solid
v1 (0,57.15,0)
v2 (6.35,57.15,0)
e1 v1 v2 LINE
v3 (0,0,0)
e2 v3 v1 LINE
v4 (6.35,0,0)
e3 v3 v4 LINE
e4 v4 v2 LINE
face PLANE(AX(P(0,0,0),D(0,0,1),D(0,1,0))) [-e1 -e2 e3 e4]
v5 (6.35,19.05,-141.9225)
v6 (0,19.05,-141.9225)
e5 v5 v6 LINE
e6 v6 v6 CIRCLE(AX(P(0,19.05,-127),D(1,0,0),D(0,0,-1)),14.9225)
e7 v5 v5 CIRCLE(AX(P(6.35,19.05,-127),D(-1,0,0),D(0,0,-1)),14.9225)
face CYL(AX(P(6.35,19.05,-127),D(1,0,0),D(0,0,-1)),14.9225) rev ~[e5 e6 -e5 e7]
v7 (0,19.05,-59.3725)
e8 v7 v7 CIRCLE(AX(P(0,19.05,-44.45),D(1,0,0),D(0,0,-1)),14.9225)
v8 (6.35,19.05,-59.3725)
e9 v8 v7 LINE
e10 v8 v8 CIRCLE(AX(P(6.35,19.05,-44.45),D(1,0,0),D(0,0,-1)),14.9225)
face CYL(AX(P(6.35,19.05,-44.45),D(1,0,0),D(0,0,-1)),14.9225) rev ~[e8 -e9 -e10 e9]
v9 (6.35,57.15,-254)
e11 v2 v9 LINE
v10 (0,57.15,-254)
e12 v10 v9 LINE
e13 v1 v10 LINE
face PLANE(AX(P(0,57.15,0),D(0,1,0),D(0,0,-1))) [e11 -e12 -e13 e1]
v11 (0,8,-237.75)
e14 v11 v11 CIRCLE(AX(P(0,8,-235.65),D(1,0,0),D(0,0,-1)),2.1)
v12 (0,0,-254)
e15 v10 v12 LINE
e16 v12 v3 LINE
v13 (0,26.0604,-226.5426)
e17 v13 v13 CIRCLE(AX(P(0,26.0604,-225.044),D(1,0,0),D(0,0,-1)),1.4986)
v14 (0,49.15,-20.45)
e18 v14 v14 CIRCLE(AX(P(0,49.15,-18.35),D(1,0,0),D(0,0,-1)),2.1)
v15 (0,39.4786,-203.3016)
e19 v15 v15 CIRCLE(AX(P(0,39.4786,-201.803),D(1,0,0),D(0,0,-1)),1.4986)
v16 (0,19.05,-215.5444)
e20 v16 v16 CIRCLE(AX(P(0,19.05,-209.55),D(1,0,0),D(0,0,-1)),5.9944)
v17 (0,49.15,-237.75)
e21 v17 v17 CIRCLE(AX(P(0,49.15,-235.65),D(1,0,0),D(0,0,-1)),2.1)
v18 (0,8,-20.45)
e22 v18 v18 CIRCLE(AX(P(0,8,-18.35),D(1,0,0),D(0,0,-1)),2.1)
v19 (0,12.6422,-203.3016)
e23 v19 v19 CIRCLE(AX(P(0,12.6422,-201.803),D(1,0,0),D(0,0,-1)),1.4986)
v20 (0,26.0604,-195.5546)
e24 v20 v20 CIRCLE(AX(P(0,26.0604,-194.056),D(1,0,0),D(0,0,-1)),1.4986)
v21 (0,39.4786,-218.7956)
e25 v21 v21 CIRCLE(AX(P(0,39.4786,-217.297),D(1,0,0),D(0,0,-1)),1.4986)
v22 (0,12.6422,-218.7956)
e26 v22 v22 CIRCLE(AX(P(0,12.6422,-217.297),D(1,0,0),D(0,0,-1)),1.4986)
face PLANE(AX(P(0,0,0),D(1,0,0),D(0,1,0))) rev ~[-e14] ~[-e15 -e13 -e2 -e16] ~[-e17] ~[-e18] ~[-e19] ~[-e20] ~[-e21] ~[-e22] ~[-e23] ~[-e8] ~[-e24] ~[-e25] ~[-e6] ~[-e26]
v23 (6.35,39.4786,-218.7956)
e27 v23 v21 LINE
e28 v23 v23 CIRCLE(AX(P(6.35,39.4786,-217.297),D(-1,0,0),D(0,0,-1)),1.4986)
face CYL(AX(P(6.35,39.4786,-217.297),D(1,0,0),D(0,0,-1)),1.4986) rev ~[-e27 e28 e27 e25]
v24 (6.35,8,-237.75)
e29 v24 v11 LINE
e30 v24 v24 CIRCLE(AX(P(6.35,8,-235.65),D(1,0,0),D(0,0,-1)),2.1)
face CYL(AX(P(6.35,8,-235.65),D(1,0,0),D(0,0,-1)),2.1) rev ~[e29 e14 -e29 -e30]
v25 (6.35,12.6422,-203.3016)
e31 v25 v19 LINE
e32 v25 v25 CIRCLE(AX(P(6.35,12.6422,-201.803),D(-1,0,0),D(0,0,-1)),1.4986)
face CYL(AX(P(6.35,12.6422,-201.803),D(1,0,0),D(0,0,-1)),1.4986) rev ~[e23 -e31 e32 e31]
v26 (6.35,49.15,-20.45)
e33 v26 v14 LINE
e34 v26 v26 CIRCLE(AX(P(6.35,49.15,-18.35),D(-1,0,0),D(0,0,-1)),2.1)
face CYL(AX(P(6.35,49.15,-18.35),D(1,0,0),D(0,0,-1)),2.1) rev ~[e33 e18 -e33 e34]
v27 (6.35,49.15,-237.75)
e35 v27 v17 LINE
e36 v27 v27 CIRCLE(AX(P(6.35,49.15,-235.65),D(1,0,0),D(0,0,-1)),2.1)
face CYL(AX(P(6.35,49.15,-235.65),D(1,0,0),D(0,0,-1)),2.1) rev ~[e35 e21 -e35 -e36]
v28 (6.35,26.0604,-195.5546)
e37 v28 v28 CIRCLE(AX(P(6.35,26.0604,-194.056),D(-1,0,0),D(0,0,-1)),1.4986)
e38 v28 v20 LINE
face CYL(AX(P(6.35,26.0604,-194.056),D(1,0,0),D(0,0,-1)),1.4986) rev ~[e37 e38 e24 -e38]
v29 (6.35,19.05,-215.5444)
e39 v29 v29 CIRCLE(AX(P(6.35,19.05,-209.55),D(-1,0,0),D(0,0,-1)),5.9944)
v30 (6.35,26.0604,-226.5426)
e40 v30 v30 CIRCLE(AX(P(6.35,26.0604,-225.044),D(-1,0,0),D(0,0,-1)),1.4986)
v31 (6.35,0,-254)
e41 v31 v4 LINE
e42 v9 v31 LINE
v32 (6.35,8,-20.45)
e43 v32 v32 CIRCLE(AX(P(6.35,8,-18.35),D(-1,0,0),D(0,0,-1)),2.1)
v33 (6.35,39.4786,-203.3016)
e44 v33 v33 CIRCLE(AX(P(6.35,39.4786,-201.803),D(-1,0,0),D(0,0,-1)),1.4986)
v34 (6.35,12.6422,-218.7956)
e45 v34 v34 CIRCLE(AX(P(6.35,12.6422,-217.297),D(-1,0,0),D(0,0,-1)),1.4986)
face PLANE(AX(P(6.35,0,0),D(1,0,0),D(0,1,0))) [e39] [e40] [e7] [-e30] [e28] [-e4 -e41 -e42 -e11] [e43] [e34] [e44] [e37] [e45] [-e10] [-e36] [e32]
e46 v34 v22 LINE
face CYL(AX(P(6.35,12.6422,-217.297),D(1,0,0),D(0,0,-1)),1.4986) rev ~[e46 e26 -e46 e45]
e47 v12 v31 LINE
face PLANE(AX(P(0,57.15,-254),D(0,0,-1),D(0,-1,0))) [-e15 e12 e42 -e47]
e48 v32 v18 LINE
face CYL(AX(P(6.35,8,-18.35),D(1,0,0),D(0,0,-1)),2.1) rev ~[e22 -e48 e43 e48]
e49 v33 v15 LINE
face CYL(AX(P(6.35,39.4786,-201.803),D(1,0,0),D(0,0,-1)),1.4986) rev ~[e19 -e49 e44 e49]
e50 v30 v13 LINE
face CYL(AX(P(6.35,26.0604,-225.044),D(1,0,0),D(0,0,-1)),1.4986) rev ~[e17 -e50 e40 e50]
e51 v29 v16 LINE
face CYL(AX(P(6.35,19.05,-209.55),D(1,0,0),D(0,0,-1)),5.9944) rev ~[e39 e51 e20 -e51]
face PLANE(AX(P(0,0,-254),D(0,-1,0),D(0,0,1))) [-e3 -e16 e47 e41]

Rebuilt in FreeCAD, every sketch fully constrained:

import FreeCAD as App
import Part
import Sketcher

V = App.Vector
Q = App.Units.Quantity

doc = App.newDocument("Part")
body = doc.addObject("PartDesign::Body", "Body")

# Sketch on YZ plane
sketch1 = body.newObject("Sketcher::SketchObject", "Sketch")
sketch1.AttachmentSupport = (doc.getObject("YZ_Plane"), [""])
sketch1.MapMode = "FlatFace"
sketch1.addGeometry(Part.LineSegment(V(57.15, 0, 0), V(0, 0, 0)), False)
sketch1.addGeometry(Part.LineSegment(V(0, 0, 0), V(0, -254, 0)), False)
sketch1.addGeometry(Part.LineSegment(V(0, -254, 0), V(57.15, -254, 0)), False)
sketch1.addGeometry(Part.LineSegment(V(57.15, -254, 0), V(57.15, 0, 0)), False)
sketch1.addConstraint(Sketcher.Constraint("Coincident", 0, 2, 1, 1))
sketch1.addConstraint(Sketcher.Constraint("Coincident", 1, 2, 2, 1))
sketch1.addConstraint(Sketcher.Constraint("Coincident", 2, 2, 3, 1))
sketch1.addConstraint(Sketcher.Constraint("Coincident", 3, 2, 0, 1))
sketch1.addConstraint(Sketcher.Constraint("Horizontal", 0))
sketch1.addConstraint(Sketcher.Constraint("Vertical", 1))
sketch1.addConstraint(Sketcher.Constraint("Horizontal", 2))
sketch1.addConstraint(Sketcher.Constraint("Vertical", 3))
sketch1.addConstraint(Sketcher.Constraint("Coincident", 0, 2, -1, 1))
sketch1.addConstraint(Sketcher.Constraint("DistanceY", 1, 2, 1, 1, Q("10 in")))
sketch1.addConstraint(Sketcher.Constraint("DistanceX", 0, 2, 0, 1, Q("2.25 in")))
pad1 = body.newObject("PartDesign::Pad", "Pad")
pad1.Profile = sketch1
pad1.Length = Q("0.25 in")

# Sketch on YZ plane
sketch2 = body.newObject("Sketcher::SketchObject", "Sketch001")
sketch2.AttachmentSupport = (doc.getObject("YZ_Plane"), [""])
sketch2.MapMode = "FlatFace"
sketch2.AttachmentOffset = App.Placement(V(0, 0, 0.25 * 25.4), App.Rotation())
sketch2.addGeometry(Part.Circle(V(19.05, -209.55, 0), V(0, 0, 1), 5.9944), False)
sketch2.addGeometry(Part.Circle(V(12.6422, -201.803, 0), V(0, 0, 1), 1.4986), False)
sketch2.addGeometry(Part.Circle(V(26.0604, -194.056, 0), V(0, 0, 1), 1.4986), False)
sketch2.addGeometry(Part.Circle(V(12.6422, -217.297, 0), V(0, 0, 1), 1.4986), False)
sketch2.addGeometry(Part.Circle(V(39.4786, -201.803, 0), V(0, 0, 1), 1.4986), False)
sketch2.addGeometry(Part.Circle(V(26.0604, -225.044, 0), V(0, 0, 1), 1.4986), False)
sketch2.addGeometry(Part.Circle(V(39.4786, -217.297, 0), V(0, 0, 1), 1.4986), False)
sketch2.addConstraint(Sketcher.Constraint("Equal", 1, 2))
sketch2.addConstraint(Sketcher.Constraint("Equal", 2, 3))
sketch2.addConstraint(Sketcher.Constraint("Equal", 3, 4))
sketch2.addConstraint(Sketcher.Constraint("Equal", 4, 5))
sketch2.addConstraint(Sketcher.Constraint("Equal", 5, 6))
sketch2.addConstraint(Sketcher.Constraint("Horizontal", 1, 3, 4, 3))
sketch2.addConstraint(Sketcher.Constraint("Horizontal", 3, 3, 6, 3))
sketch2.addConstraint(Sketcher.Constraint("Vertical", 1, 3, 3, 3))
sketch2.addConstraint(Sketcher.Constraint("Vertical", 2, 3, 5, 3))
sketch2.addConstraint(Sketcher.Constraint("Vertical", 4, 3, 6, 3))
sketch2.addConstraint(Sketcher.Constraint("Diameter", 0, Q("0.472 in")))
sketch2.addConstraint(Sketcher.Constraint("Diameter", 1, Q("0.118 in")))
sketch2.addConstraint(Sketcher.Constraint("DistanceY", 0, 3, -1, 1, Q("8.25 in")))
sketch2.addConstraint(Sketcher.Constraint("DistanceY", 5, 3, 2, 3, Q("1.22 in")))
sketch2.addConstraint(Sketcher.Constraint("DistanceX", 0, 3, 2, 3, Q("0.276 in")))
sketch2.addConstraint(Sketcher.Constraint("DistanceX", -1, 1, 0, 3, Q("0.75 in")))
sketch2.addConstraint(Sketcher.Constraint("DistanceY", 2, 3, -1, 1, Q("7.64 in")))
sketch2.addConstraint(Sketcher.Constraint("DistanceY", 3, 3, 1, 3, Q("0.61 in")))
sketch2.addConstraint(Sketcher.Constraint("DistanceY", 1, 3, -1, 1, Q("7.945 in")))
sketch2.addConstraint(Sketcher.Constraint("DistanceX", -1, 1, 1, 3, Q("12.6422 mm")))
sketch2.addConstraint(Sketcher.Constraint("DistanceX", -1, 1, 4, 3, Q("39.4786 mm")))
pocket1 = body.newObject("PartDesign::Pocket", "Pocket")
pocket1.Profile = sketch2
pocket1.Type = "ThroughAll"

# Sketch on YZ plane
sketch3 = body.newObject("Sketcher::SketchObject", "Sketch002")
sketch3.AttachmentSupport = (doc.getObject("YZ_Plane"), [""])
sketch3.MapMode = "FlatFace"
sketch3.AttachmentOffset = App.Placement(V(0, 0, 0.25 * 25.4), App.Rotation())
sketch3.addGeometry(Part.Circle(V(19.05, -44.45, 0), V(0, 0, 1), 14.9225), False)
sketch3.addGeometry(Part.Circle(V(19.05, -127, 0), V(0, 0, 1), 14.9225), False)
sketch3.addConstraint(Sketcher.Constraint("Equal", 0, 1))
sketch3.addConstraint(Sketcher.Constraint("Vertical", 0, 3, 1, 3))
sketch3.addConstraint(Sketcher.Constraint("Diameter", 0, Q("1.175 in")))
sketch3.addConstraint(Sketcher.Constraint("DistanceY", 1, 3, 0, 3, Q("3.25 in")))
sketch3.addConstraint(Sketcher.Constraint("DistanceY", 1, 3, -1, 1, Q("5 in")))
sketch3.addConstraint(Sketcher.Constraint("DistanceX", -1, 1, 0, 3, Q("0.75 in")))
pocket2 = body.newObject("PartDesign::Pocket", "Pocket001")
pocket2.Profile = sketch3
pocket2.Type = "ThroughAll"

# Sketch on YZ plane
sketch4 = body.newObject("Sketcher::SketchObject", "Sketch003")
sketch4.AttachmentSupport = (doc.getObject("YZ_Plane"), [""])
sketch4.MapMode = "FlatFace"
sketch4.AttachmentOffset = App.Placement(V(0, 0, 0.25 * 25.4), App.Rotation())
sketch4.addGeometry(Part.Circle(V(49.15, -18.35, 0), V(0, 0, 1), 2.1), False)
sketch4.addGeometry(Part.Circle(V(8, -18.35, 0), V(0, 0, 1), 2.1), False)
sketch4.addGeometry(Part.Circle(V(49.15, -235.65, 0), V(0, 0, 1), 2.1), False)
sketch4.addGeometry(Part.Circle(V(8, -235.65, 0), V(0, 0, 1), 2.1), False)
sketch4.addConstraint(Sketcher.Constraint("Equal", 0, 1))
sketch4.addConstraint(Sketcher.Constraint("Equal", 1, 2))
sketch4.addConstraint(Sketcher.Constraint("Equal", 2, 3))
sketch4.addConstraint(Sketcher.Constraint("Horizontal", 0, 3, 1, 3))
sketch4.addConstraint(Sketcher.Constraint("Horizontal", 2, 3, 3, 3))
sketch4.addConstraint(Sketcher.Constraint("Vertical", 0, 3, 2, 3))
sketch4.addConstraint(Sketcher.Constraint("Vertical", 1, 3, 3, 3))
sketch4.addConstraint(Sketcher.Constraint("Diameter", 0, Q("4.2 mm")))
sketch4.addConstraint(Sketcher.Constraint("DistanceX", -1, 1, 1, 3, Q("8 mm")))
sketch4.addConstraint(Sketcher.Constraint("DistanceX", -1, 1, 0, 3, Q("49.15 mm")))
sketch4.addConstraint(Sketcher.Constraint("DistanceY", 0, 3, -1, 1, Q("18.35 mm")))
sketch4.addConstraint(Sketcher.Constraint("DistanceY", 2, 3, -1, 1, Q("235.65 mm")))
pocket3 = body.newObject("PartDesign::Pocket", "Pocket002")
pocket3.Profile = sketch4
pocket3.Type = "ThroughAll"

doc.recompute()
